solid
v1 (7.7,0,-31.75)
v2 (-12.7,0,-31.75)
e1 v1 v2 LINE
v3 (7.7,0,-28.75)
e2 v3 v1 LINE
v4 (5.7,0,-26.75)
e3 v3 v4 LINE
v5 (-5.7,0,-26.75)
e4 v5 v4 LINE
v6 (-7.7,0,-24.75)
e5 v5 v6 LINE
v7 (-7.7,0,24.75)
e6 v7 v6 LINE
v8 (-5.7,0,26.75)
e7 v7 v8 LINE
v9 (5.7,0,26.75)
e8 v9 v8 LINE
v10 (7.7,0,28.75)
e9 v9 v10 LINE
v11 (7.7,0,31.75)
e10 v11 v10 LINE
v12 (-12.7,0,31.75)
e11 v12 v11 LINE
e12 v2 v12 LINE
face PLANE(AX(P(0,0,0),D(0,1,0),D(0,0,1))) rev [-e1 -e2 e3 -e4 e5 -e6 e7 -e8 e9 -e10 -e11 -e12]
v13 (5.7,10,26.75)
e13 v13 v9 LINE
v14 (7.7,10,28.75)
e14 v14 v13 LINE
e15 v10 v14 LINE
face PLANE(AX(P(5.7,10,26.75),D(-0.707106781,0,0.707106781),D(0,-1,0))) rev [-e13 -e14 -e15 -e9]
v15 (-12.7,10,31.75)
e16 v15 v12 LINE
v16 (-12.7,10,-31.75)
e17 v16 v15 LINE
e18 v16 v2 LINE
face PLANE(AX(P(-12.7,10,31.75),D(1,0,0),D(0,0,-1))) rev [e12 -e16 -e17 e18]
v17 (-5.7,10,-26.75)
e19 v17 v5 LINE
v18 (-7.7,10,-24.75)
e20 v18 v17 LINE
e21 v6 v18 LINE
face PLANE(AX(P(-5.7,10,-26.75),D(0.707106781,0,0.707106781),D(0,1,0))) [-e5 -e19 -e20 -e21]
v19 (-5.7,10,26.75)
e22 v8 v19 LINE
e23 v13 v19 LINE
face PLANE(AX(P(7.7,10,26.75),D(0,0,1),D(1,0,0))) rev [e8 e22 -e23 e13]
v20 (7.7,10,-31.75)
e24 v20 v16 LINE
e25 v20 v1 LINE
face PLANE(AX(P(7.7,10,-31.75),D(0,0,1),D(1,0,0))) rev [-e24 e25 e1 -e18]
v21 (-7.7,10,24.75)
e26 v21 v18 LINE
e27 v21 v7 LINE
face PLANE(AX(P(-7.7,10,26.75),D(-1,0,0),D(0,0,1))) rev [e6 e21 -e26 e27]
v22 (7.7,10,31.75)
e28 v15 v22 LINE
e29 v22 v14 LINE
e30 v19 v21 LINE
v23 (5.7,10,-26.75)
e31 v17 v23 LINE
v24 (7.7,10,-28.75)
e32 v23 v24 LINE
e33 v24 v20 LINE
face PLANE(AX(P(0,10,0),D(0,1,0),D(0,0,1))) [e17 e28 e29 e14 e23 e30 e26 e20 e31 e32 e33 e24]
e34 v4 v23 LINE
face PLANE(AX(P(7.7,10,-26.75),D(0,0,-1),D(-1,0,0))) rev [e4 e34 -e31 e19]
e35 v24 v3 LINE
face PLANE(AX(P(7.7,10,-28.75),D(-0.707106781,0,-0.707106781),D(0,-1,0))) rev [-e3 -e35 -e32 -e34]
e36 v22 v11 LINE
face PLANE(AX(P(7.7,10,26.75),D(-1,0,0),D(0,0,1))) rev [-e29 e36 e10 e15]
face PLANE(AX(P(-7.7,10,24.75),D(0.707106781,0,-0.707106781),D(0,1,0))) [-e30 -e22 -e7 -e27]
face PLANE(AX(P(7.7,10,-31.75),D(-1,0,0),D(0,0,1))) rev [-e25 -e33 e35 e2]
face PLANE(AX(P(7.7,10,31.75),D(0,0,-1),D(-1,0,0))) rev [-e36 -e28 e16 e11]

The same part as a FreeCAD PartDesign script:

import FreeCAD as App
import Part
import Sketcher

V = App.Vector


def edges_at(feature, points):
    """Names of the edges that pass closest to the given points."""
    edges = feature.Shape.Edges
    near = lambda p: min(range(len(edges)), key=lambda i: edges[i].distToShape(Part.Vertex(*p))[0])
    return sorted({f"Edge{near(p) + 1}" for p in points})

doc = App.newDocument("Part")
params = doc.addObject("Spreadsheet::Sheet", "Params")
for row, (alias, value) in enumerate([
    ("sketch1_height", "5 mm"),
    ("sketch1_width", "15.4 mm"),
    ("sketch1_width2", "20.4 mm"),
    ("sketch1_height2", "63.5 mm"),
    ("pad1_length", "10 mm"),
    ("chamfer_size", "2 mm"),
], start=1):
    params.set(f"A{row}", alias)
    params.set(f"B{row}", "=" + value)
    params.setAlias(f"B{row}", alias)

body = doc.addObject("PartDesign::Body", "Body")

sketch1 = body.newObject("Sketcher::SketchObject", "Sketch")
sketch1.AttachmentSupport = (doc.getObject("XZ_Plane"), [""])
sketch1.MapMode = "FlatFace"
sketch1.addGeometry([
    Part.LineSegment(V(-8, -27, 0), V(8, -27, 0)),
    Part.LineSegment(V(8, -27, 0), V(8, -32, 0)),
    Part.LineSegment(V(8, -32, 0), V(-13, -32, 0)),
    Part.LineSegment(V(-13, -32, 0), V(-13, 32, 0)),
    Part.LineSegment(V(-13, 32, 0), V(8, 32, 0)),
    Part.LineSegment(V(8, 32, 0), V(8, 27, 0)),
    Part.LineSegment(V(8, 27, 0), V(-8, 27, 0)),
    Part.LineSegment(V(-8, 27, 0), V(-8, -27, 0)),
], False)
sketch1.addConstraint([
    Sketcher.Constraint("Coincident", 0, 2, 1, 1),
    Sketcher.Constraint("Coincident", 1, 2, 2, 1),
    Sketcher.Constraint("Coincident", 2, 2, 3, 1),
    Sketcher.Constraint("Coincident", 3, 2, 4, 1),
    Sketcher.Constraint("Coincident", 4, 2, 5, 1),
    Sketcher.Constraint("Coincident", 5, 2, 6, 1),
    Sketcher.Constraint("Coincident", 6, 2, 7, 1),
    Sketcher.Constraint("Coincident", 7, 2, 0, 1),
    Sketcher.Constraint("Horizontal", 0),
    Sketcher.Constraint("Vertical", 1),
    Sketcher.Constraint("Horizontal", 2),
    Sketcher.Constraint("Vertical", 3),
    Sketcher.Constraint("Horizontal", 4),
    Sketcher.Constraint("Vertical", 5),
    Sketcher.Constraint("Horizontal", 6),
    Sketcher.Constraint("Vertical", 7),
    Sketcher.Constraint("Symmetric", 0, 2, 6, 2, -1, 1),
    Sketcher.Constraint("Symmetric", 1, 2, 4, 2, -1),
    Sketcher.Constraint("DistanceY", 1, 2, 1, 1, 5.0),
    Sketcher.Constraint("DistanceX", 0, 1, 0, 2, 15.4),
    Sketcher.Constraint("DistanceX", 2, 2, 2, 1, 20.4),
    Sketcher.Constraint("DistanceY", 3, 1, 3, 2, 63.5),
])
sketch1.setExpression("Constraints[18]", "Params.sketch1_height")
sketch1.setExpression("Constraints[19]", "Params.sketch1_width")
sketch1.setExpression("Constraints[20]", "Params.sketch1_width2")
sketch1.setExpression("Constraints[21]", "Params.sketch1_height2")
pad1 = body.newObject("PartDesign::Pad", "Pad")
pad1.Profile = sketch1
pad1.setExpression("Length", "Params.pad1_length")
pad1.Reversed = True
doc.recompute()

chamfer = body.newObject("PartDesign::Chamfer", "Chamfer")
chamfer.Base = (pad1, edges_at(pad1, [
    (7.7, 5, -26.75),
    (-7.7, 5, -26.75),
    (-7.7, 5, 26.75),
    (7.7, 5, 26.75),
]))
chamfer.setExpression("Size", "Params.chamfer_size")

doc.recompute()
